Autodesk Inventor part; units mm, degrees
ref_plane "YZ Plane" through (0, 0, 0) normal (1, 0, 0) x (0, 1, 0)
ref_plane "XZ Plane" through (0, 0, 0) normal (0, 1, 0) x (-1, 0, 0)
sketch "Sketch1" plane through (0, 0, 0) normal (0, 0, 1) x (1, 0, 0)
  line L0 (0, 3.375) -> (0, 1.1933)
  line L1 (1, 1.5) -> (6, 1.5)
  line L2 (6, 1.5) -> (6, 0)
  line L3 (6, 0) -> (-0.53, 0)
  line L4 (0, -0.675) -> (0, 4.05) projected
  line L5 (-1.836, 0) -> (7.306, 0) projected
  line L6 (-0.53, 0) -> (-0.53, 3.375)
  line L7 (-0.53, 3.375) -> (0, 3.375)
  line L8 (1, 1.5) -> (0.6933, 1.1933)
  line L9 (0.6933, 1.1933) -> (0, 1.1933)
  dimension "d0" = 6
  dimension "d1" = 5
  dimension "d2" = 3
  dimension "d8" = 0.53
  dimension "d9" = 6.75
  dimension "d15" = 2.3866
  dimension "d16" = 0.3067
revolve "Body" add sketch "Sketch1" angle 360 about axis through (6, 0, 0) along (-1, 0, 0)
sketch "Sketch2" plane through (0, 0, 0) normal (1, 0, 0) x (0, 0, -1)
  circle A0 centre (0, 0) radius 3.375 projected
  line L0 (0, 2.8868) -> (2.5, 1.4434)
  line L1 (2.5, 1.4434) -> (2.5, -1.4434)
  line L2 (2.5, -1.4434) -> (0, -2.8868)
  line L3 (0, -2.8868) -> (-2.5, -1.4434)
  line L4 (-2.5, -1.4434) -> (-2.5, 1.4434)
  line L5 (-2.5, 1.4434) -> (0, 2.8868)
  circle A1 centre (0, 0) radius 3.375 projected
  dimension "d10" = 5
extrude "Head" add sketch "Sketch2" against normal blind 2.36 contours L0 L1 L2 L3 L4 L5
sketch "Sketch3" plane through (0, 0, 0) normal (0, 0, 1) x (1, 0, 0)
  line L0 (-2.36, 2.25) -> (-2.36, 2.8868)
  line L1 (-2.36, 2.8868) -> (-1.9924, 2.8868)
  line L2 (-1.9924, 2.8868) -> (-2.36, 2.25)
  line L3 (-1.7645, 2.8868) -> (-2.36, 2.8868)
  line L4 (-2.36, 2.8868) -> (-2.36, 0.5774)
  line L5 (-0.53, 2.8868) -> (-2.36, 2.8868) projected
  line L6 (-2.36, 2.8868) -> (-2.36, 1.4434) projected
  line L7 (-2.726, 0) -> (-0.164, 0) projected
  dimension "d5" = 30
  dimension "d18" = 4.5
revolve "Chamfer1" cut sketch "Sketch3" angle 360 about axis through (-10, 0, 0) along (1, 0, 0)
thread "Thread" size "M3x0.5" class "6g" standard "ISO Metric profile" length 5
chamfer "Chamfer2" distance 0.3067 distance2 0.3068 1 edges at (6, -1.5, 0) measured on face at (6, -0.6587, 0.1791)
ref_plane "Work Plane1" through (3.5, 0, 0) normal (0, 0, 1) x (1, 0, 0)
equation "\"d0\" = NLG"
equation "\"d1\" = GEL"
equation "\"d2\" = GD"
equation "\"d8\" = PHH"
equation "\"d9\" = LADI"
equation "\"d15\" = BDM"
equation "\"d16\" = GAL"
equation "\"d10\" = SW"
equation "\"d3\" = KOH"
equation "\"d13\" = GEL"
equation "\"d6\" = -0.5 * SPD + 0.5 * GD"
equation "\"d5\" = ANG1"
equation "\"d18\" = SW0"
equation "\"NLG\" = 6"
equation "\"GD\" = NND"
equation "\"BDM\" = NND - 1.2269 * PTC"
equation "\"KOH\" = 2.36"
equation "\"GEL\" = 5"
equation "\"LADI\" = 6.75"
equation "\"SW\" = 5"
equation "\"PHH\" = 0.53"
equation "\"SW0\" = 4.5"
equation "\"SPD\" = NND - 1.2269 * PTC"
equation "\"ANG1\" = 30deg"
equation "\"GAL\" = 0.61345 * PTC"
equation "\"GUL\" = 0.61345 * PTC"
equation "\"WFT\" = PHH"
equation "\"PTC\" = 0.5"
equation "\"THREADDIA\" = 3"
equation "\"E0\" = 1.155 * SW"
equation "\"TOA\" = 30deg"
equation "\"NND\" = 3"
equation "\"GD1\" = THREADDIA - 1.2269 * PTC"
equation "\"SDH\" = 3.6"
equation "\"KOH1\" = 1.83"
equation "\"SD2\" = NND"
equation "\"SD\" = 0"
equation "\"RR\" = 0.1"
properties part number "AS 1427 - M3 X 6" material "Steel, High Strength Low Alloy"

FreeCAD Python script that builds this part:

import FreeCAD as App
import Part
import Sketcher

V = App.Vector
Q = App.Units.Quantity


def edges_at(feature, points):
    """Names of the edges that pass closest to the given points."""
    edges = feature.Shape.Edges
    near = lambda p: min(range(len(edges)), key=lambda i: edges[i].distToShape(Part.Vertex(*p))[0])
    return sorted({f"Edge{near(p) + 1}" for p in points})


def add_polygon(sketch, points):
    """Adds a closed chain of lines whose ends are joined by coincident constraints."""
    first, n = sketch.GeometryCount, len(points)
    for a, b in zip(points, points[1:] + points[:1]):
        sketch.addGeometry(Part.LineSegment(App.Vector(*a, 0), App.Vector(*b, 0)), False)
    for i in range(n):
        sketch.addConstraint(Sketcher.Constraint("Coincident", first + i, 2, first + (i + 1) % n, 1))

doc = App.newDocument("Part")
body = doc.addObject("PartDesign::Body", "Body")

# Sketch on XY plane
sketch1 = doc.addObject("Sketcher::SketchObject", "Sketch")
body.addObject(sketch1)
sketch1.AttachmentSupport = (doc.XY_Plane, [""])
sketch1.MapMode = "FlatFace"
add_polygon(sketch1, [(0, 1.19), (0, 3.38), (-0.53, 3.38), (-0.53, 0), (6, 0), (6, 1.5), (1, 1.5), (0.69, 1.19)])  # lines 0-7
sketch1.addConstraint(Sketcher.Constraint("Vertical", 0))
sketch1.addConstraint(Sketcher.Constraint("Horizontal", 1))
sketch1.addConstraint(Sketcher.Constraint("Vertical", 2))
sketch1.addConstraint(Sketcher.Constraint("Horizontal", 3))
sketch1.addConstraint(Sketcher.Constraint("Vertical", 4))
sketch1.addConstraint(Sketcher.Constraint("Horizontal", 5))
sketch1.addConstraint(Sketcher.Constraint("Horizontal", 7))
sketch1.addConstraint(Sketcher.Constraint("PointOnObject", 0, 2, -2))
sketch1.addConstraint(Sketcher.Constraint("PointOnObject", 2, 2, -1))
sketch1.addConstraint(Sketcher.Constraint("DistanceX", 5, 2, 5, 1, Q("5 mm")))
sketch1.addConstraint(Sketcher.Constraint("DistanceX", -1, 1, 3, 2, Q("6 mm")))
sketch1.addConstraint(Sketcher.Constraint("DistanceX", 1, 2, 1, 1, Q("0.53 mm")))
sketch1.addConstraint(Sketcher.Constraint("Angle", 6, Q("-135 deg")))
sketch1.addConstraint(Sketcher.Constraint("DistanceY", 4, 1, 4, 2, Q("1.5 mm")))
sketch1.addConstraint(Sketcher.Constraint("DistanceX", 6, 2, 5, 2, Q("0.3067 mm")))
sketch1.addConstraint(Sketcher.Constraint("DistanceY", 2, 2, 2, 1, Q("3.375 mm")))
revolution = doc.addObject("PartDesign::Revolution", "Revolution")
body.addObject(revolution)
revolution.Profile = sketch1
revolution.ReferenceAxis = (sketch1, ["H_Axis"])
revolution.Angle = 360

# Sketch on YZ plane
sketch2 = doc.addObject("Sketcher::SketchObject", "Sketch001")
body.addObject(sketch2)
sketch2.AttachmentSupport = (doc.YZ_Plane, [""])
sketch2.MapMode = "FlatFace"
add_polygon(sketch2, [(1.4, -2.5), (2.9, 0), (1.4, 2.5), (-1.4, 2.5), (-2.9, 0), (-1.4, -2.5)])  # lines 0-5
sketch2.addConstraint(Sketcher.Constraint("Horizontal", 2))
sketch2.addConstraint(Sketcher.Constraint("Horizontal", 5))
sketch2.addConstraint(Sketcher.Constraint("Symmetric", 0, 2, 3, 2, -1, 1))
sketch2.addConstraint(Sketcher.Constraint("Symmetric", 1, 2, 4, 2, -1, 1))
sketch2.addConstraint(Sketcher.Constraint("PointOnObject", 0, 2, -1))
sketch2.addConstraint(Sketcher.Constraint("Parallel", 0, 3))
sketch2.addConstraint(Sketcher.Constraint("Vertical", 2, 2, 4, 2))
sketch2.addConstraint(Sketcher.Constraint("DistanceY", 4, 2, 2, 2, Q("5 mm")))
sketch2.addConstraint(Sketcher.Constraint("Angle", 0, Q("59.9996 deg")))
sketch2.addConstraint(Sketcher.Constraint("DistanceX", 2, 2, 2, 1, Q("2.8868 mm")))
pad1 = doc.addObject("PartDesign::Pad", "Pad")
body.addObject(pad1)
pad1.Profile = sketch2
pad1.Length = 2.36
pad1.Reversed = True

# Sketch on XY plane
sketch3 = doc.addObject("Sketcher::SketchObject", "Sketch002")
body.addObject(sketch3)
sketch3.AttachmentSupport = (doc.XY_Plane, [""])
sketch3.MapMode = "FlatFace"
add_polygon(sketch3, [(-2.36, 2.89), (-2.36, 2.25), (-1.99, 2.89)])  # lines 0-2
sketch3.addConstraint(Sketcher.Constraint("Vertical", 0))
sketch3.addConstraint(Sketcher.Constraint("Horizontal", 2))
sketch3.addConstraint(Sketcher.Constraint("DistanceX", 0, 2, -1, 1, Q("2.36 mm")))
sketch3.addConstraint(Sketcher.Constraint("DistanceY", -1, 1, 0, 2, Q("2.25 mm")))
sketch3.addConstraint(Sketcher.Constraint("DistanceX", 2, 2, 2, 1, Q("0.3676 mm")))
sketch3.addConstraint(Sketcher.Constraint("DistanceY", 0, 2, 0, 1, Q("0.6368 mm")))
groove = doc.addObject("PartDesign::Groove", "Groove")
body.addObject(groove)
groove.Profile = sketch3
groove.ReferenceAxis = (sketch3, ["H_Axis"])
groove.Angle = 360
doc.recompute()

chamfer = doc.addObject("PartDesign::Chamfer", "Chamfer")
body.addObject(chamfer)
chamfer.Base = (groove, edges_at(groove, [(6, -1.5, 0)]))
chamfer.ChamferType = "Two distances"
chamfer.Size = 0.3067
chamfer.Size2 = 0.3068

doc.recompute()
